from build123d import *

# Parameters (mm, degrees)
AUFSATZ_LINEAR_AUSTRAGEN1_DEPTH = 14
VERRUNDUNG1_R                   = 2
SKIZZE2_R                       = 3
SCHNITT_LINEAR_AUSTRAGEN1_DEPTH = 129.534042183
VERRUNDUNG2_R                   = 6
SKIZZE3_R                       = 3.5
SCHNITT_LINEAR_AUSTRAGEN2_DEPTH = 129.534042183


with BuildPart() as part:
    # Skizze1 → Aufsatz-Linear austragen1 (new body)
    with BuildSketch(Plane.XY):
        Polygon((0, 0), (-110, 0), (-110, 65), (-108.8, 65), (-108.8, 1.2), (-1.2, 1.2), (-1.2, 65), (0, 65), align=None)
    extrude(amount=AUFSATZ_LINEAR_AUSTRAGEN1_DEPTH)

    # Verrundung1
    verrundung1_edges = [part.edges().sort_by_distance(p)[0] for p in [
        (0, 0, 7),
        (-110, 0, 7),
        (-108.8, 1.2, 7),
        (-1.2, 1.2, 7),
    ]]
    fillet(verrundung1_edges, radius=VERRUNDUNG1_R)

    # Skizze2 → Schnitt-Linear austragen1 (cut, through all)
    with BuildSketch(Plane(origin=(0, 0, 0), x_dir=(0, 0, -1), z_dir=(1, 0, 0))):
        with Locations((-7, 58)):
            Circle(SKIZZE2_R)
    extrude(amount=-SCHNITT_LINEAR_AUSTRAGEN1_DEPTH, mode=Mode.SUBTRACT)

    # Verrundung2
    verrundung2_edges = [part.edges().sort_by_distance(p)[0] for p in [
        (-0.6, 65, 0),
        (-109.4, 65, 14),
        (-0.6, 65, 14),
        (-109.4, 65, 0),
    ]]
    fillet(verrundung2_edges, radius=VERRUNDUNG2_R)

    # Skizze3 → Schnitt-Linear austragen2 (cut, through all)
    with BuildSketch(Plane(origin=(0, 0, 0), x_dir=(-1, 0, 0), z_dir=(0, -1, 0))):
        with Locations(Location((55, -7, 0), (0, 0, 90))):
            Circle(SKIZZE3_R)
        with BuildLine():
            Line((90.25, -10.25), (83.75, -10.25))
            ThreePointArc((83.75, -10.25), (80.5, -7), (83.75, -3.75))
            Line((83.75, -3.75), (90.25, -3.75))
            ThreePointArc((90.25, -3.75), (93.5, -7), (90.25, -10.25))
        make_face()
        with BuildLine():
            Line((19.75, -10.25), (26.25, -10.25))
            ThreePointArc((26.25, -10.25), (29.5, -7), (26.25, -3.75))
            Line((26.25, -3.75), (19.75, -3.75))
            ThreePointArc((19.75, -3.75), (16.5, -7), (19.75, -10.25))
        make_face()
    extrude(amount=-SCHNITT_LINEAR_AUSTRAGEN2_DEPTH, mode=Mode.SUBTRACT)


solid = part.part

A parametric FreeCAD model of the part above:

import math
import FreeCAD as App
import Part
import Sketcher


def edges_at(feature, points):
    """Names of the edges that pass closest to the given points."""
    edges = feature.Shape.Edges
    near = lambda p: min(range(len(edges)), key=lambda i: edges[i].distToShape(Part.Vertex(*p))[0])
    return sorted({f"Edge{near(p) + 1}" for p in points})

doc = App.newDocument("Part")
params = doc.addObject("Spreadsheet::Sheet", "Params")
for row, (alias, value) in enumerate([
    ("sketch1_width", "110 mm"),
    ("sketch1_height", "65 mm"),
    ("sketch1_width2", "1.2 mm"),
    ("sketch1_height2", "63.8 mm"),
    ("pad1_length", "14 mm"),
    ("fillet_radius", "2 mm"),
    ("sketch2_diameter", "6 mm"),
    ("fillet2_radius", "6 mm"),
    ("sketch3_diameter", "7 mm"),
    ("sketch3_radius", "3.25 mm"),
    ("sketch3_width", "6.5 mm"),
], start=1):
    params.set(f"A{row}", alias)
    params.set(f"B{row}", "=" + value)
    params.setAlias(f"B{row}", alias)

body = doc.addObject("PartDesign::Body", "Body")

# Sketch on XY plane
sketch1 = body.newObject("Sketcher::SketchObject", "Sketch")
sketch1.AttachmentSupport = (doc.getObject("XY_Plane"), [""])
sketch1.MapMode = "FlatFace"
sketch1.addGeometry([
    Part.LineSegment(App.Vector(-110, 0, 0), App.Vector(0, 0, 0)),  # 0
    Part.LineSegment(App.Vector(0, 0, 0), App.Vector(0, 65, 0)),  # 1
    Part.LineSegment(App.Vector(0, 65, 0), App.Vector(-1.2, 65, 0)),  # 2
    Part.LineSegment(App.Vector(-1.2, 65, 0), App.Vector(-1.2, 1.2, 0)),  # 3
    Part.LineSegment(App.Vector(-1.2, 1.2, 0), App.Vector(-108.8, 1.2, 0)),  # 4
    Part.LineSegment(App.Vector(-108.8, 1.2, 0), App.Vector(-108.8, 65, 0)),  # 5
    Part.LineSegment(App.Vector(-108.8, 65, 0), App.Vector(-110, 65, 0)),  # 6
    Part.LineSegment(App.Vector(-110, 65, 0), App.Vector(-110, 0, 0)),  # 7
], False)
sketch1.addConstraint([
    Sketcher.Constraint("Coincident", 0, 2, 1, 1),
    Sketcher.Constraint("Coincident", 1, 2, 2, 1),
    Sketcher.Constraint("Coincident", 2, 2, 3, 1),
    Sketcher.Constraint("Coincident", 3, 2, 4, 1),
    Sketcher.Constraint("Coincident", 4, 2, 5, 1),
    Sketcher.Constraint("Coincident", 5, 2, 6, 1),
    Sketcher.Constraint("Coincident", 6, 2, 7, 1),
    Sketcher.Constraint("Coincident", 7, 2, 0, 1),
    Sketcher.Constraint("Horizontal", 0),
    Sketcher.Constraint("Vertical", 1),
    Sketcher.Constraint("Horizontal", 2),
    Sketcher.Constraint("Vertical", 3),
    Sketcher.Constraint("Horizontal", 4),
    Sketcher.Constraint("Vertical", 5),
    Sketcher.Constraint("Horizontal", 6),
    Sketcher.Constraint("Vertical", 7),
    Sketcher.Constraint("Coincident", 0, 2, -1, 1),
    Sketcher.Constraint("Horizontal", 2, 2, 5, 2),
    Sketcher.Constraint("Equal", 2, 6),
    Sketcher.Constraint("DistanceX", 0, 1, 0, 2, 110.0),
    Sketcher.Constraint("DistanceY", 1, 1, 1, 2, 65.0),
    Sketcher.Constraint("DistanceX", 2, 2, 2, 1, 1.2),
    Sketcher.Constraint("DistanceY", 3, 2, 3, 1, 63.8),
])
sketch1.setExpression("Constraints[19]", "Params.sketch1_width")
sketch1.setExpression("Constraints[20]", "Params.sketch1_height")
sketch1.setExpression("Constraints[21]", "Params.sketch1_width2")
sketch1.setExpression("Constraints[22]", "Params.sketch1_height2")
pad1 = body.newObject("PartDesign::Pad", "Pad")
pad1.Profile = sketch1
pad1.setExpression("Length", "Params.pad1_length")
doc.recompute()

fillet = body.newObject("PartDesign::Fillet", "Fillet")
fillet.Base = (pad1, edges_at(pad1, [
    (0, 0, 7),
    (-110, 0, 7),
    (-108.8, 1.2, 7),
    (-1.2, 1.2, 7),
]))
fillet.setExpression("Radius", "Params.fillet_radius")

# Sketch on YZ plane
sketch2 = body.newObject("Sketcher::SketchObject", "Sketch001")
sketch2.AttachmentSupport = (doc.getObject("YZ_Plane"), [""])
sketch2.MapMode = "FlatFace"
sketch2.addGeometry(Part.Circle(App.Vector(58, 7, 0), App.Vector(0, 0, 1), 3), False)
sketch2.addConstraint([
    Sketcher.Constraint("Diameter", 0, 6.0),
    Sketcher.Constraint("DistanceX", -1, 1, 0, 3, 58.0),
    Sketcher.Constraint("DistanceY", -1, 1, 0, 3, 7.0),
])
sketch2.setExpression("Constraints[0]", "Params.sketch2_diameter")
pocket1 = body.newObject("PartDesign::Pocket", "Pocket")
pocket1.Profile = sketch2
pocket1.Type = "ThroughAll"
doc.recompute()

fillet2 = body.newObject("PartDesign::Fillet", "Fillet001")
fillet2.Base = (pocket1, edges_at(pocket1, [
    (-0.6, 65, 0),
    (-109.4, 65, 14),
    (-0.6, 65, 14),
    (-109.4, 65, 0),
]))
fillet2.setExpression("Radius", "Params.fillet2_radius")

# Sketch on XZ plane
sketch3 = body.newObject("Sketcher::SketchObject", "Sketch002")
sketch3.AttachmentSupport = (doc.getObject("XZ_Plane"), [""])
sketch3.MapMode = "FlatFace"
sketch3.addGeometry([
    Part.Circle(App.Vector(-55, 7, 0), App.Vector(0, 0, 1), 3.5),  # 0
    Part.LineSegment(App.Vector(-83.8, 10.2, 0), App.Vector(-90.2, 10.2, 0)),  # 1
    Part.ArcOfCircle(Part.Circle(App.Vector(-90.2, 7, 0), App.Vector(0, 0, 1), 3.2), math.radians(90), math.radians(270)),  # 2
    Part.LineSegment(App.Vector(-90.2, 3.8, 0), App.Vector(-83.8, 3.8, 0)),  # 3
    Part.ArcOfCircle(Part.Circle(App.Vector(-83.8, 7, 0), App.Vector(0, 0, 1), 3.2), math.radians(-90), math.radians(90)),  # 4
    Part.LineSegment(App.Vector(-19.8, 10.2, 0), App.Vector(-26.2, 10.2, 0)),  # 5
    Part.ArcOfCircle(Part.Circle(App.Vector(-26.2, 7, 0), App.Vector(0, 0, 1), 3.2), math.radians(90), math.radians(270)),  # 6
    Part.LineSegment(App.Vector(-26.2, 3.8, 0), App.Vector(-19.8, 3.8, 0)),  # 7
    Part.ArcOfCircle(Part.Circle(App.Vector(-19.8, 7, 0), App.Vector(0, 0, 1), 3.2), math.radians(-90), math.radians(90)),  # 8
], False)
sketch3.addConstraint([
    Sketcher.Constraint("Tangent", 1, 2, 2, 1),
    Sketcher.Constraint("Tangent", 2, 2, 3, 1),
    Sketcher.Constraint("Tangent", 3, 2, 4, 1),
    Sketcher.Constraint("Tangent", 4, 2, 1, 1),
    Sketcher.Constraint("Tangent", 5, 2, 6, 1),
    Sketcher.Constraint("Tangent", 6, 2, 7, 1),
    Sketcher.Constraint("Tangent", 7, 2, 8, 1),
    Sketcher.Constraint("Tangent", 8, 2, 5, 1),
    Sketcher.Constraint("Horizontal", 1),
    Sketcher.Constraint("Horizontal", 3),
    Sketcher.Constraint("Horizontal", 5),
    Sketcher.Constraint("Horizontal", 7),
    Sketcher.Constraint("Equal", 4, 6),
    Sketcher.Constraint("Horizontal", 0, 3, 2, 3),
    Sketcher.Constraint("Horizontal", 4, 3, 6, 3),
    Sketcher.Constraint("Equal", 3, 5),
    Sketcher.Constraint("Diameter", 0, 7.0),
    Sketcher.Constraint("Radius", 2, 3.25),
    Sketcher.Constraint("DistanceX", 1, 2, 1, 1, 6.5),
    Sketcher.Constraint("DistanceX", 0, 3, -1, 1, 55.0),
    Sketcher.Constraint("DistanceY", -1, 1, 0, 3, 7.0),
    Sketcher.Constraint("DistanceX", 2, 3, 6, 3, 64.0),
    Sketcher.Constraint("DistanceX", 2, 3, -1, 1, 90.25),
])
sketch3.setExpression("Constraints[16]", "Params.sketch3_diameter")
sketch3.setExpression("Constraints[17]", "Params.sketch3_radius")
sketch3.setExpression("Constraints[18]", "Params.sketch3_width")
pocket2 = body.newObject("PartDesign::Pocket", "Pocket001")
pocket2.Profile = sketch3
pocket2.Type = "ThroughAll"

doc.recompute()
